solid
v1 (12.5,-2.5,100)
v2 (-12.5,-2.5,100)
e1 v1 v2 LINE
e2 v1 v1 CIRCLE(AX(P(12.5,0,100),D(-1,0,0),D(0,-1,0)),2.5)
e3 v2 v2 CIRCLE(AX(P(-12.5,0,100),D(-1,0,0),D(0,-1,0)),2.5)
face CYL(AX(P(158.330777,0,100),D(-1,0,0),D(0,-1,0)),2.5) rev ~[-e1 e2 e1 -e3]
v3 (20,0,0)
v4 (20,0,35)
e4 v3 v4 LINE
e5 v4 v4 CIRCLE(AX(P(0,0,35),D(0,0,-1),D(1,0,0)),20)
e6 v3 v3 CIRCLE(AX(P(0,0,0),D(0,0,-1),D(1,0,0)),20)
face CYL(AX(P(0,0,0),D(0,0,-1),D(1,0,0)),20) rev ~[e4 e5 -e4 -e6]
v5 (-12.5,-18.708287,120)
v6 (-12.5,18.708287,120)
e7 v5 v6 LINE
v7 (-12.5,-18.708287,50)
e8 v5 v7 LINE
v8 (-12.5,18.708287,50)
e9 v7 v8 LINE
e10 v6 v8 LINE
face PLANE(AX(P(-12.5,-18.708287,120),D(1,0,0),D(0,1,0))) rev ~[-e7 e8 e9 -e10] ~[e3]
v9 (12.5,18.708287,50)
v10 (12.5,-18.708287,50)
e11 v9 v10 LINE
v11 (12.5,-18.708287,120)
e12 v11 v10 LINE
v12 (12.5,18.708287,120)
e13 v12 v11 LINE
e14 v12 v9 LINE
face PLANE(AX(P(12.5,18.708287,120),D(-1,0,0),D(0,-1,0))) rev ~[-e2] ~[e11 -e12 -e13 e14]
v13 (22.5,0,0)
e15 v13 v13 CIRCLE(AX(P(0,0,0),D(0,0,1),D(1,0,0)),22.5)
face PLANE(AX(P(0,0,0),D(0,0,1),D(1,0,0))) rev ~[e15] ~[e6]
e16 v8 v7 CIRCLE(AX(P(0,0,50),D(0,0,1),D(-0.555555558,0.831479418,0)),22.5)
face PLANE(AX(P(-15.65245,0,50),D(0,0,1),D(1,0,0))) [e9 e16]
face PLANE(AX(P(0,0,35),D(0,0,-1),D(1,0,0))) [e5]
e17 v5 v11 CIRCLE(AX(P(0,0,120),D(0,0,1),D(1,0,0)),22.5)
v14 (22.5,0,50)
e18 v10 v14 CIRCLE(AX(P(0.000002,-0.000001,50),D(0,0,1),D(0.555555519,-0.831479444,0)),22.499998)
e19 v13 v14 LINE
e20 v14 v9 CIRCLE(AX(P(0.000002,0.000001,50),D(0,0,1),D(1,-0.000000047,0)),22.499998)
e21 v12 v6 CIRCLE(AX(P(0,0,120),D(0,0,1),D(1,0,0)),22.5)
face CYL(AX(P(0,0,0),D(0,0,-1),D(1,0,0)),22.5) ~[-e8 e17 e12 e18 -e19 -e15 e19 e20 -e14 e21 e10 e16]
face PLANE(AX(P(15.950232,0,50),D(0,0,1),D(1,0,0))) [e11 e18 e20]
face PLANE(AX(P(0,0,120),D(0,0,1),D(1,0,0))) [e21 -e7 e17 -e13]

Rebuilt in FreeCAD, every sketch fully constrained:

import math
import FreeCAD as App
import Part
import Sketcher
from FreeCAD import Vector

doc = App.newDocument("Part")
body = doc.addObject("PartDesign::Body", "Body")

# Sketch on XY plane
sketch1 = doc.addObject("Sketcher::SketchObject", "Sketch")
body.addObject(sketch1)
sketch1.AttachmentSupport = (doc.XY_Plane, [""])
sketch1.MapMode = "FlatFace"
sketch1.addGeometry(Part.Circle(Vector(0, 0, 0), Vector(0, 0, 1), 22), False)
sketch1.addConstraint(Sketcher.Constraint("Coincident", 0, 3, -1, 1))
sketch1.addConstraint(Sketcher.Constraint("Diameter", 0, 45.0))
pad1 = doc.addObject("PartDesign::Pad", "Pad")
body.addObject(pad1)
pad1.Profile = sketch1
pad1.Length = 120

# Sketch on XY plane
sketch2 = doc.addObject("Sketcher::SketchObject", "Sketch001")
body.addObject(sketch2)
sketch2.AttachmentSupport = (doc.XY_Plane, [""])
sketch2.MapMode = "FlatFace"
sketch2.AttachmentOffset = App.Placement(Vector(0, 0, 120), App.Rotation())
sketch2.addGeometry(Part.LineSegment(Vector(-12, -19, 0), Vector(-12, 19, 0)), False)
sketch2.addGeometry(Part.ArcOfCircle(Part.Circle(Vector(0, 0, 0), Vector(0, 0, 1), 23), math.radians(124), math.radians(236)), False)
sketch2.addGeometry(Part.ArcOfCircle(Part.Circle(Vector(0, 0, 0), Vector(0, 0, 1), 22), math.radians(0), math.radians(56)), False)
sketch2.addGeometry(Part.LineSegment(Vector(12, 19, 0), Vector(12, -19, 0)), False)
sketch2.addGeometry(Part.ArcOfCircle(Part.Circle(Vector(0, 0, 0), Vector(0, 0, 1), 22), math.radians(-56), math.radians(0)), False)
sketch2.addConstraint(Sketcher.Constraint("Coincident", 0, 1, 1, 2))
sketch2.addConstraint(Sketcher.Constraint("Coincident", 1, 1, 0, 2))
sketch2.addConstraint(Sketcher.Constraint("Coincident", 2, 2, 3, 1))
sketch2.addConstraint(Sketcher.Constraint("Coincident", 3, 2, 4, 1))
sketch2.addConstraint(Sketcher.Constraint("Tangent", 4, 2, 2, 1))
sketch2.addConstraint(Sketcher.Constraint("Vertical", 0))
sketch2.addConstraint(Sketcher.Constraint("Vertical", 3))
sketch2.addConstraint(Sketcher.Constraint("Coincident", 1, 3, -1, 1))
sketch2.addConstraint(Sketcher.Constraint("Coincident", 2, 3, -1, 1))
sketch2.addConstraint(Sketcher.Constraint("Equal", 1, 2))
sketch2.addConstraint(Sketcher.Constraint("Equal", 2, 4))
sketch2.addConstraint(Sketcher.Constraint("PointOnObject", 4, 2, -1))
sketch2.addConstraint(Sketcher.Constraint("Horizontal", 1, 1, 2, 2))
sketch2.addConstraint(Sketcher.Constraint("Radius", 1, 22.5))
sketch2.addConstraint(Sketcher.Constraint("DistanceX", 1, 1, 2, 2, 25.0))
pocket1 = doc.addObject("PartDesign::Pocket", "Pocket")
body.addObject(pocket1)
pocket1.Profile = sketch2
pocket1.Length = 70

# Sketch on XY plane
sketch3 = doc.addObject("Sketcher::SketchObject", "Sketch002")
body.addObject(sketch3)
sketch3.AttachmentSupport = (doc.XY_Plane, [""])
sketch3.MapMode = "FlatFace"
sketch3.addGeometry(Part.Circle(Vector(0, 0, 0), Vector(0, 0, 1), 20), False)
sketch3.addConstraint(Sketcher.Constraint("Coincident", 0, 3, -1, 1))
sketch3.addConstraint(Sketcher.Constraint("Diameter", 0, 40.0))
pocket2 = doc.addObject("PartDesign::Pocket", "Pocket001")
body.addObject(pocket2)
pocket2.Profile = sketch3
pocket2.Length = 35
pocket2.Reversed = True

# Sketch on YZ plane
sketch4 = doc.addObject("Sketcher::SketchObject", "Sketch003")
body.addObject(sketch4)
sketch4.AttachmentSupport = (doc.YZ_Plane, [""])
sketch4.MapMode = "FlatFace"
sketch4.AttachmentOffset = App.Placement(Vector(0, 0, 22.5), App.Rotation())
sketch4.addGeometry(Part.Circle(Vector(0, 100, 0), Vector(0, 0, 1), 2.5), False)
sketch4.addConstraint(Sketcher.Constraint("PointOnObject", 0, 3, -2))
sketch4.addConstraint(Sketcher.Constraint("Diameter", 0, 5.0))
sketch4.addConstraint(Sketcher.Constraint("DistanceY", -1, 1, 0, 3, 100.0))
doc.recompute()
hole = doc.addObject("PartDesign::Hole", "Hole")
body.addObject(hole)
hole.Profile = sketch4
hole.ThreadType = "None"
hole.Diameter = 5
hole.DepthType = "ThroughAll"

doc.recompute()
